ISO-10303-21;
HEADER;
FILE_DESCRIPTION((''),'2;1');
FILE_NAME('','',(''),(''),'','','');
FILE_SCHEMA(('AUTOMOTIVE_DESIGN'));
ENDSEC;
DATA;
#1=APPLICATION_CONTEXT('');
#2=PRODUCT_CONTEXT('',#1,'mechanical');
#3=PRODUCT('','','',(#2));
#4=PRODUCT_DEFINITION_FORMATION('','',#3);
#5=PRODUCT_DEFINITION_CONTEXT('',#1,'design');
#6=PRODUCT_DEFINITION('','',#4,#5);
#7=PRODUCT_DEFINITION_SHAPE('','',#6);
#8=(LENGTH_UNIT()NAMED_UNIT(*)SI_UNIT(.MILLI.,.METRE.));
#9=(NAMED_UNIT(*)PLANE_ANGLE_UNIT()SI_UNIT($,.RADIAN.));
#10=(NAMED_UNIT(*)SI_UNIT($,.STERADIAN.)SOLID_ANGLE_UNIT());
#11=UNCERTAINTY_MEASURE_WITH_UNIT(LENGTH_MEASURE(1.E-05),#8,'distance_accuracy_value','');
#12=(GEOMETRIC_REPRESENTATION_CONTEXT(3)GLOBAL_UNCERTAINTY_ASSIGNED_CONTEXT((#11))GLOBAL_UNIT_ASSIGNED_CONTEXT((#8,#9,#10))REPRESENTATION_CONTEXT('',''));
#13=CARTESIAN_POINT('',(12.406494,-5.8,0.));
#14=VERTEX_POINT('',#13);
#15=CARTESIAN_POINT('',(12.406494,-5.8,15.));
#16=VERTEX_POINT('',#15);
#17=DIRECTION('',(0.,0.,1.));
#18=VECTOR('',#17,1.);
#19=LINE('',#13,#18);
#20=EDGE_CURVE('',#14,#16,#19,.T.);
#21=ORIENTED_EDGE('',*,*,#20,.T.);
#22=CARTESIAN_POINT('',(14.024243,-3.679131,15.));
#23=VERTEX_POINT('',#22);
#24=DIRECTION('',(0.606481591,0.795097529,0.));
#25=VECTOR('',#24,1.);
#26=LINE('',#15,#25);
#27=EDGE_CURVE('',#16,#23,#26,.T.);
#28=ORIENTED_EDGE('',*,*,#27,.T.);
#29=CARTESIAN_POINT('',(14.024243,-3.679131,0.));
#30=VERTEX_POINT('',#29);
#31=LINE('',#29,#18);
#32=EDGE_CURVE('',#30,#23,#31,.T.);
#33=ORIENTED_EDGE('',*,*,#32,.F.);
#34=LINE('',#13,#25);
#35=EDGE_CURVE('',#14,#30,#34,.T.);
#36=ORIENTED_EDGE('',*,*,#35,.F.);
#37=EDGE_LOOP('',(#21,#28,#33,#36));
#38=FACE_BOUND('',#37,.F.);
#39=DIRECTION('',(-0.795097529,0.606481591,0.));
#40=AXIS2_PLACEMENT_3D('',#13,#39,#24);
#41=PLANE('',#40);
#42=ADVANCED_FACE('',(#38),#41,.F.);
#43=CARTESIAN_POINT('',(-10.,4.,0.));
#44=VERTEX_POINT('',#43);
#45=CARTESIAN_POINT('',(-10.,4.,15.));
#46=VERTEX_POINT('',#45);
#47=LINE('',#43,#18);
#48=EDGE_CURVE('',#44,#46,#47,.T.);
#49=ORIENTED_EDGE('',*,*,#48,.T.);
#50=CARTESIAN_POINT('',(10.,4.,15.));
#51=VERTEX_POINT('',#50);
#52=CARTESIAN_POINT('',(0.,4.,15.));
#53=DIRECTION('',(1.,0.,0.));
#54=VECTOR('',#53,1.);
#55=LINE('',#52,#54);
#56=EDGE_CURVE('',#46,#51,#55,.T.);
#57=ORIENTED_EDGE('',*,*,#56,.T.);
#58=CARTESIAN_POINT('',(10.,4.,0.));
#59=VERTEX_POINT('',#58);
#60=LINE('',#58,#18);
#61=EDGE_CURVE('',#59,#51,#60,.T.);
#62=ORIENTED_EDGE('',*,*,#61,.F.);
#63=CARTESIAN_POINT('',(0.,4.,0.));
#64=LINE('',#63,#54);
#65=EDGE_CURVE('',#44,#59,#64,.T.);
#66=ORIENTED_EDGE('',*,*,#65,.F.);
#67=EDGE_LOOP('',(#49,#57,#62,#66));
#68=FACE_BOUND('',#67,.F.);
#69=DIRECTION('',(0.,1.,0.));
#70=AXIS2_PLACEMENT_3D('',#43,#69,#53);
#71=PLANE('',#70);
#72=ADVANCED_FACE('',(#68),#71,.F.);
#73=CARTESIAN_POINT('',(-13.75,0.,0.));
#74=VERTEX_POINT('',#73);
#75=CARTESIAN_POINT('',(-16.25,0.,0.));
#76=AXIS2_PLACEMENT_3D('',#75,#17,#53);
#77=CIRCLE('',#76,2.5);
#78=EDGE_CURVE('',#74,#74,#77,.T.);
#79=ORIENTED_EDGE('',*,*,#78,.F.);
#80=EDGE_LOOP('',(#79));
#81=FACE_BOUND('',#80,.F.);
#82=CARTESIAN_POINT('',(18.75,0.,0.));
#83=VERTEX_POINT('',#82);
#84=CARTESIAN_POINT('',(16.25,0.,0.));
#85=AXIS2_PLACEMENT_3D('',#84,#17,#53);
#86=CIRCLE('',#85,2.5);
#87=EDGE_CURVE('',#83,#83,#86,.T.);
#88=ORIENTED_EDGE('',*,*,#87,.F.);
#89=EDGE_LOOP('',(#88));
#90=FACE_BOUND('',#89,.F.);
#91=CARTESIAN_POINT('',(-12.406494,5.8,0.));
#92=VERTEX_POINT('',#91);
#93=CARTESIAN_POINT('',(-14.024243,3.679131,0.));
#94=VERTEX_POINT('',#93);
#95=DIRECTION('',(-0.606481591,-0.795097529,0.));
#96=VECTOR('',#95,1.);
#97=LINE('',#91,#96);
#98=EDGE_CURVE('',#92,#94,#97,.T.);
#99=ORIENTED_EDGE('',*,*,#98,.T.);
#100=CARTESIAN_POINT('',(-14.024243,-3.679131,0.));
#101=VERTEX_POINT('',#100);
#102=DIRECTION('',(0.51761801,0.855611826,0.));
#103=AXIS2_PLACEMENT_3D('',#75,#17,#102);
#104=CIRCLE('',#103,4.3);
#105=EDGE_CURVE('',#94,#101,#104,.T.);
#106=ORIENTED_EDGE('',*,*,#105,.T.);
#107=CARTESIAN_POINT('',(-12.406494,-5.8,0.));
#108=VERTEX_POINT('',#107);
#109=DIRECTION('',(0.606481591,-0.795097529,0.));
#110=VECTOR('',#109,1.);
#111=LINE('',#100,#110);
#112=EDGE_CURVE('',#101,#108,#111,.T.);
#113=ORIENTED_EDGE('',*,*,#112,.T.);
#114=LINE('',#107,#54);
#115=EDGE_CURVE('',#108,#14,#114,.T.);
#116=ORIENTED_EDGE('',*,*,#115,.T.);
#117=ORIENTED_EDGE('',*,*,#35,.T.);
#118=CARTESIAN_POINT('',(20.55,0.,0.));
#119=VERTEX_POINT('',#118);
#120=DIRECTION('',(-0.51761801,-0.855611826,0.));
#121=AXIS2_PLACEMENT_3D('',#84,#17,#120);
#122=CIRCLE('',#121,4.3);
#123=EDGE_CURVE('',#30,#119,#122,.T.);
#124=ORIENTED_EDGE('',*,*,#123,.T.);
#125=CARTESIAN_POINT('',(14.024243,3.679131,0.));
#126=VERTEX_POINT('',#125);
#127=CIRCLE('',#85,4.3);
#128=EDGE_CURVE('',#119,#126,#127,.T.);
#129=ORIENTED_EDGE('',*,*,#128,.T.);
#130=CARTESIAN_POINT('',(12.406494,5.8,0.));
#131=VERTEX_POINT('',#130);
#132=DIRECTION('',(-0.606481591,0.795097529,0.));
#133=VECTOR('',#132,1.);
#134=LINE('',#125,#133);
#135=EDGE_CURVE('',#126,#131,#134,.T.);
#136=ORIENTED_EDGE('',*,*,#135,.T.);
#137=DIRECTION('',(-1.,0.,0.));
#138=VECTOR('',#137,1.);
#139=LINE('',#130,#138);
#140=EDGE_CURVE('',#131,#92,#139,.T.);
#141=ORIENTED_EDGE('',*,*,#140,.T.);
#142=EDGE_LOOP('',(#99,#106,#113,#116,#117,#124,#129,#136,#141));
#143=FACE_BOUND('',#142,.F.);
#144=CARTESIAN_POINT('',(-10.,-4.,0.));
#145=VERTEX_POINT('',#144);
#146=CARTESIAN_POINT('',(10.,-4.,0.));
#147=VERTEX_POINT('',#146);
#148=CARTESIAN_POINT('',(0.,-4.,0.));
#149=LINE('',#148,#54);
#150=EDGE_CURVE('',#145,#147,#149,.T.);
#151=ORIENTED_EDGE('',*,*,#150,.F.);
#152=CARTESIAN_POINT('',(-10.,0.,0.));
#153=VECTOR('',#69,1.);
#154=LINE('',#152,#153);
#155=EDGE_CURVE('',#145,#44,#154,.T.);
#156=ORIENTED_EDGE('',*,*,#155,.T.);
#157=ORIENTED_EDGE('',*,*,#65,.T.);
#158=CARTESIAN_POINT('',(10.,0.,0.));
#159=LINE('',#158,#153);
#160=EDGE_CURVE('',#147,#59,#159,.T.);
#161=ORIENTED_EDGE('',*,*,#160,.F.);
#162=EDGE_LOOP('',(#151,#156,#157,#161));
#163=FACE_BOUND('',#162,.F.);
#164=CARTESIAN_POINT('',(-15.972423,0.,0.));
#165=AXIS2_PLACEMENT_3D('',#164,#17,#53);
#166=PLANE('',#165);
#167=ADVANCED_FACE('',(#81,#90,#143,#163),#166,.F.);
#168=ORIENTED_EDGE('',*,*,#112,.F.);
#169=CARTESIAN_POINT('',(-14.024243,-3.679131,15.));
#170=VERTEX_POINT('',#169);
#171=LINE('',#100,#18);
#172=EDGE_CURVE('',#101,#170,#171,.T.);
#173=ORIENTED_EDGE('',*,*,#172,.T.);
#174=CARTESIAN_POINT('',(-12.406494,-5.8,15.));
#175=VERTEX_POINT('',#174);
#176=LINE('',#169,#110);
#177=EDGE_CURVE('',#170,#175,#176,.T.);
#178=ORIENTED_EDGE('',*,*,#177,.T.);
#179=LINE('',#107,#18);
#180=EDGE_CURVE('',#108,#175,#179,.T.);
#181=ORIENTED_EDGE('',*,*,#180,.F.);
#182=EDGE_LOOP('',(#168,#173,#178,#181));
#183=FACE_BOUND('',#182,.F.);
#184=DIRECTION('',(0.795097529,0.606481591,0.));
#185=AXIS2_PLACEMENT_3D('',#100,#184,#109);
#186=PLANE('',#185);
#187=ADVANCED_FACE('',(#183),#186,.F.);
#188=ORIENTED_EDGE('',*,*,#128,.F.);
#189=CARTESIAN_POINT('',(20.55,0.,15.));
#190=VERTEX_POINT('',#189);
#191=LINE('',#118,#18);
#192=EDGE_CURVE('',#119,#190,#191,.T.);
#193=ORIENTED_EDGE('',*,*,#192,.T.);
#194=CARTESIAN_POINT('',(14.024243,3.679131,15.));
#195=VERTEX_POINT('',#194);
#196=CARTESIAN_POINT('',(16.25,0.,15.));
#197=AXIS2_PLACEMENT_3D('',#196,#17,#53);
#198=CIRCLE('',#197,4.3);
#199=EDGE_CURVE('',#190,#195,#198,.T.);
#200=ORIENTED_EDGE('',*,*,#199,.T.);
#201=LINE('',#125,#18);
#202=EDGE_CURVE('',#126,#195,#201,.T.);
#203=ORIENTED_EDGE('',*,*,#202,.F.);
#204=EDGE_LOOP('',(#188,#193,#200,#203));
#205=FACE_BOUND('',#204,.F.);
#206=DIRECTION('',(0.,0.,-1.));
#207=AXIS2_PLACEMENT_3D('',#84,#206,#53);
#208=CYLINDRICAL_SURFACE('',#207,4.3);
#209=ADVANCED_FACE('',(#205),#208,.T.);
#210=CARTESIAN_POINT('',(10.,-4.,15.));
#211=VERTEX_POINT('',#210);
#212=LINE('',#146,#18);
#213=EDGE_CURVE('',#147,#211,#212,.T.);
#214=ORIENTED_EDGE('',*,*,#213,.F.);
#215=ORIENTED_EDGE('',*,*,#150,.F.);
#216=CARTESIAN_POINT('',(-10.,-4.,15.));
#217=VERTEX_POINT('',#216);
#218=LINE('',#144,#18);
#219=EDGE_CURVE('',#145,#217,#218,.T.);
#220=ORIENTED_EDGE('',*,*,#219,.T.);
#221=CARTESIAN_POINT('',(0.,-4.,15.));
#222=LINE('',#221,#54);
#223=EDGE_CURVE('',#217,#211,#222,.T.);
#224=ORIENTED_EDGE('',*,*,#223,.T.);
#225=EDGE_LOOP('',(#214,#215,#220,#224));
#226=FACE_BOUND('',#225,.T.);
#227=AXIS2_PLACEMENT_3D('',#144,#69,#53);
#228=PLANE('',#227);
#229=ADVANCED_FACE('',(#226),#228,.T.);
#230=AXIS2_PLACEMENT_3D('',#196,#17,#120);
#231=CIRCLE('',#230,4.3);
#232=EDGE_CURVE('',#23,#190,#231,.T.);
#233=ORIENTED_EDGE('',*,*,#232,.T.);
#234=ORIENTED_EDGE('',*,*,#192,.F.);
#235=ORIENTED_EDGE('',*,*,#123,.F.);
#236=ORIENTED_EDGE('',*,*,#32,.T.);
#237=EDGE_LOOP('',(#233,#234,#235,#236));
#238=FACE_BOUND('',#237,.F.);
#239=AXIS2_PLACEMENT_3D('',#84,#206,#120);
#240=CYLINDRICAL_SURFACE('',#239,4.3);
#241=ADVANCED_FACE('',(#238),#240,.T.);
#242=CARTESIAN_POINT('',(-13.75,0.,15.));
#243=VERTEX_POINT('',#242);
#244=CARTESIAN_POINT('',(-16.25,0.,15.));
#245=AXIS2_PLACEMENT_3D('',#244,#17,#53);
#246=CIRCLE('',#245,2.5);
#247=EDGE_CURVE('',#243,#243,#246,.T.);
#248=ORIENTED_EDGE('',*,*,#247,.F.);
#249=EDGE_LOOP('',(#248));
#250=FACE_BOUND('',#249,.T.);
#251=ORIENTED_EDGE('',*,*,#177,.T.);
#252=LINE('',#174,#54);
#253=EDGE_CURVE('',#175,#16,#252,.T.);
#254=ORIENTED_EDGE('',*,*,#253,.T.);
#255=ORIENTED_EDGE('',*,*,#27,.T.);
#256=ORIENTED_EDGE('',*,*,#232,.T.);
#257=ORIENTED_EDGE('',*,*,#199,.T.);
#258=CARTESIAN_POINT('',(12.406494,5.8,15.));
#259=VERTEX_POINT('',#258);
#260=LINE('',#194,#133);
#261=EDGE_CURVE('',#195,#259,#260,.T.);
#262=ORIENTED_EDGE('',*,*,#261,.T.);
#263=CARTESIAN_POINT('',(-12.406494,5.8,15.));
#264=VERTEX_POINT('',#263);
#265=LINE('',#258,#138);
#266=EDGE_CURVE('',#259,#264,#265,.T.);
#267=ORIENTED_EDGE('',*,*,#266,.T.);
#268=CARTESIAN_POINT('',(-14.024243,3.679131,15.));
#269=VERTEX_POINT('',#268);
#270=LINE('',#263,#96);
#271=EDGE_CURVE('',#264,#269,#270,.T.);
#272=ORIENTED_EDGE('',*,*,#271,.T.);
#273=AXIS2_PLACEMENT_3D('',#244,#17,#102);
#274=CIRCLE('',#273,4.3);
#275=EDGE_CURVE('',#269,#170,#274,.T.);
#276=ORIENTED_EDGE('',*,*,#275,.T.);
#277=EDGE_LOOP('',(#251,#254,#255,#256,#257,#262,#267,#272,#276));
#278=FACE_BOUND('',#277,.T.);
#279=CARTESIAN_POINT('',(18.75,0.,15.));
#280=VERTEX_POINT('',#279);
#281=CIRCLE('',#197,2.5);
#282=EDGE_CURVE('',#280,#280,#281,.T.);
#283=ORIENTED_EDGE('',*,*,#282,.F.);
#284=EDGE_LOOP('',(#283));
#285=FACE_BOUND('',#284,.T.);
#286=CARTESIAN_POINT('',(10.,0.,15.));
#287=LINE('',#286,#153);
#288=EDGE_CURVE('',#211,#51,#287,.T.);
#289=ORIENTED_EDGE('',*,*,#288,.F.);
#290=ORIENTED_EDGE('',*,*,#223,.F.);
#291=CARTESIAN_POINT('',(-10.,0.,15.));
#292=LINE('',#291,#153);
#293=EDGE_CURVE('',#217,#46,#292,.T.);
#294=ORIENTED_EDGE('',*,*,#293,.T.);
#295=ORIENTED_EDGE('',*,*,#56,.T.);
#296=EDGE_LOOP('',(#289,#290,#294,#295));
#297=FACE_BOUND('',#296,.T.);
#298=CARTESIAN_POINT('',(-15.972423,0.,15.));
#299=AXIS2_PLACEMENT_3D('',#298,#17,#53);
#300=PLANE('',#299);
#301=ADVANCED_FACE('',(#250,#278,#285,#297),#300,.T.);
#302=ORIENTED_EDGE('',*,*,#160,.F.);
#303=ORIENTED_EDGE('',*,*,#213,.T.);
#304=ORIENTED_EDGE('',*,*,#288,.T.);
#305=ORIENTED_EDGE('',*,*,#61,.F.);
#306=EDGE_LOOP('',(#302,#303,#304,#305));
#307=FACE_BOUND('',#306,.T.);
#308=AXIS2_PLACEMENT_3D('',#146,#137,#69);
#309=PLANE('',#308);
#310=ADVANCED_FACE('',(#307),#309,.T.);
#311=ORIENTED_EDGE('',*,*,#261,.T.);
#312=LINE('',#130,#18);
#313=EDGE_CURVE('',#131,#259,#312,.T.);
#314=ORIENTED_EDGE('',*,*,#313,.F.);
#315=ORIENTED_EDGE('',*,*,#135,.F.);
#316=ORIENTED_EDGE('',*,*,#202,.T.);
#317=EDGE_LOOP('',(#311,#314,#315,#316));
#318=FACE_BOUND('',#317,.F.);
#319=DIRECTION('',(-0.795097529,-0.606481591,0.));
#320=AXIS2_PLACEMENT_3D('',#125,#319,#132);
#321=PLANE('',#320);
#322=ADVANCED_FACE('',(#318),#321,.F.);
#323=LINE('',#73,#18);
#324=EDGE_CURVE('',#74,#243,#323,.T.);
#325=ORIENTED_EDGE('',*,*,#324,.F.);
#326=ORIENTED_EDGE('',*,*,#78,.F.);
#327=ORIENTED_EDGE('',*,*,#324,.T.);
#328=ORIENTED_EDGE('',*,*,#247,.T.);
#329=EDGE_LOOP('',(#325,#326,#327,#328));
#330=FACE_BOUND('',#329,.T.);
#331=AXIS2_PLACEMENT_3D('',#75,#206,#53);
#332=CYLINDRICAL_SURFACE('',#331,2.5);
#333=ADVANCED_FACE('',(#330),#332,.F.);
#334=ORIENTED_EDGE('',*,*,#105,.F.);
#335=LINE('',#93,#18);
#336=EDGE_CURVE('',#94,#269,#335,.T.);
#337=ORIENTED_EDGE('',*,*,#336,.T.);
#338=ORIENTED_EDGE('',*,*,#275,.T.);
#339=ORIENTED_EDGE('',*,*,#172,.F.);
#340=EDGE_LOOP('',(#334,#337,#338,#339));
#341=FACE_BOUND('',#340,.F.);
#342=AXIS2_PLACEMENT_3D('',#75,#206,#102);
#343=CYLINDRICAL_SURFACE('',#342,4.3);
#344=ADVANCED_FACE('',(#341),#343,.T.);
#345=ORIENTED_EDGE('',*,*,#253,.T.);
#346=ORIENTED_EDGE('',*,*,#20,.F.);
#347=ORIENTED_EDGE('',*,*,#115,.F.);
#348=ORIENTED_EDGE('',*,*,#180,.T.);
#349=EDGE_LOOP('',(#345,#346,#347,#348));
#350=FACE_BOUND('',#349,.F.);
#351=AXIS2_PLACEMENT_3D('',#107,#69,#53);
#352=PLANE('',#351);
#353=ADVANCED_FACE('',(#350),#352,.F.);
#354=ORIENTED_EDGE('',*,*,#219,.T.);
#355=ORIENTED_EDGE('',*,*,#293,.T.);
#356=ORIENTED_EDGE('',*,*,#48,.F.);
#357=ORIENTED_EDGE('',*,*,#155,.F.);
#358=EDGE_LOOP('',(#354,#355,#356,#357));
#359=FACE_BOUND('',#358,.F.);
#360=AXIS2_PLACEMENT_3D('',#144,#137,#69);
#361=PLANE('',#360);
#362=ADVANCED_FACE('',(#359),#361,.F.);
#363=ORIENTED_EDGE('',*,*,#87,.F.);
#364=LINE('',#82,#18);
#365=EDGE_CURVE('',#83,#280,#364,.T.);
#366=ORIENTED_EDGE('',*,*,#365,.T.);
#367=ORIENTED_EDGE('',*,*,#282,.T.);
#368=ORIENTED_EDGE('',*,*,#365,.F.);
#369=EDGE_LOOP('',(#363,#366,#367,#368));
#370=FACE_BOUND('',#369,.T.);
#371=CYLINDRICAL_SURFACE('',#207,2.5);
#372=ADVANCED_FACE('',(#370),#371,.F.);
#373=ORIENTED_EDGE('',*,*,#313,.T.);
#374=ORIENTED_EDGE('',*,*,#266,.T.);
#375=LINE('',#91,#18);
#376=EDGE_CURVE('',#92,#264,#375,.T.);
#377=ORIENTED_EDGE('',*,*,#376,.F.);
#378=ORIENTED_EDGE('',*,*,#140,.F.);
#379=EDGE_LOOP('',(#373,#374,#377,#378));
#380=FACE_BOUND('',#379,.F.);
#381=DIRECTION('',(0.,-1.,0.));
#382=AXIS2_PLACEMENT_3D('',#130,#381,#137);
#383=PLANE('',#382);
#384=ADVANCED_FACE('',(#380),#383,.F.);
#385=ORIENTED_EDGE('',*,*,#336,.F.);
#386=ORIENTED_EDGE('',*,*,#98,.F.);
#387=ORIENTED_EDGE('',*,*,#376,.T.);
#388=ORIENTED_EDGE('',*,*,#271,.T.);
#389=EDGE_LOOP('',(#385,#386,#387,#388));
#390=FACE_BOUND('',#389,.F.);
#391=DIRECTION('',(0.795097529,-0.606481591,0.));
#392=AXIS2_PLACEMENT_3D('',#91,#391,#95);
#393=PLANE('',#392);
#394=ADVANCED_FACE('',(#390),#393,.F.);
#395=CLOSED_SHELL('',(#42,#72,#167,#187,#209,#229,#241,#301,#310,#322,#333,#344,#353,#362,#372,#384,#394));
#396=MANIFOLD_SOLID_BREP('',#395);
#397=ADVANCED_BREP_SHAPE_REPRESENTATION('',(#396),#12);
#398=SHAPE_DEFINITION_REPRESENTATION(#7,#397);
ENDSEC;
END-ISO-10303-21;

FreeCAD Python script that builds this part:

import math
import FreeCAD as App
import Part
import Sketcher
from FreeCAD import Vector


def add_polygon(sketch, points):
    """Adds a closed chain of lines whose ends are joined by coincident constraints."""
    first, n = sketch.GeometryCount, len(points)
    for a, b in zip(points, points[1:] + points[:1]):
        sketch.addGeometry(Part.LineSegment(App.Vector(*a, 0), App.Vector(*b, 0)), False)
    for i in range(n):
        sketch.addConstraint(Sketcher.Constraint("Coincident", first + i, 2, first + (i + 1) % n, 1))

doc = App.newDocument("Part")
body = doc.addObject("PartDesign::Body", "Body")

sketch1 = body.newObject("Sketcher::SketchObject", "Sketch")
sketch1.AttachmentSupport = (doc.getObject("XY_Plane"), [""])
sketch1.MapMode = "FlatFace"
sketch1.addGeometry(Part.ArcOfCircle(Part.Circle(Vector(-16.2, 0, 0), Vector(0, 0, 1), 4.3), math.radians(59), math.radians(301)), False)
sketch1.addGeometry(Part.LineSegment(Vector(-14, -3.7, 0), Vector(-12.4, -5.8, 0)), False)
sketch1.addGeometry(Part.LineSegment(Vector(-12.4, -5.8, 0), Vector(12.4, -5.8, 0)), False)
sketch1.addGeometry(Part.LineSegment(Vector(12.4, -5.8, 0), Vector(14, -3.7, 0)), False)
sketch1.addGeometry(Part.ArcOfCircle(Part.Circle(Vector(16.2, 0, 0), Vector(0, 0, 1), 4.3), math.radians(-121), math.radians(0)), False)
sketch1.addGeometry(Part.ArcOfCircle(Part.Circle(Vector(16.2, 0, 0), Vector(0, 0, 1), 4.3), math.radians(0), math.radians(121)), False)
sketch1.addGeometry(Part.LineSegment(Vector(14, 3.7, 0), Vector(12.4, 5.8, 0)), False)
sketch1.addGeometry(Part.LineSegment(Vector(12.4, 5.8, 0), Vector(-12.4, 5.8, 0)), False)
sketch1.addGeometry(Part.LineSegment(Vector(-12.4, 5.8, 0), Vector(-14, 3.7, 0)), False)
sketch1.addGeometry(Part.Circle(Vector(-16.2, 0, 0), Vector(0, 0, 1), 2.5), False)
add_polygon(sketch1, [(10, -4), (-10, -4), (-10, 4), (10, 4)])
sketch1.addGeometry(Part.Circle(Vector(16.2, 0, 0), Vector(0, 0, 1), 2.5), False)
sketch1.addConstraint(Sketcher.Constraint("Coincident", 0, 2, 1, 1))
sketch1.addConstraint(Sketcher.Constraint("Coincident", 1, 2, 2, 1))
sketch1.addConstraint(Sketcher.Constraint("Coincident", 2, 2, 3, 1))
sketch1.addConstraint(Sketcher.Constraint("Coincident", 3, 2, 4, 1))
sketch1.addConstraint(Sketcher.Constraint("Tangent", 4, 2, 5, 1))
sketch1.addConstraint(Sketcher.Constraint("Coincident", 5, 2, 6, 1))
sketch1.addConstraint(Sketcher.Constraint("Coincident", 6, 2, 7, 1))
sketch1.addConstraint(Sketcher.Constraint("Coincident", 7, 2, 8, 1))
sketch1.addConstraint(Sketcher.Constraint("Coincident", 8, 2, 0, 1))
sketch1.addConstraint(Sketcher.Constraint("Horizontal", 2))
sketch1.addConstraint(Sketcher.Constraint("Horizontal", 7))
sketch1.addConstraint(Sketcher.Constraint("Horizontal", 10))
sketch1.addConstraint(Sketcher.Constraint("Vertical", 11))
sketch1.addConstraint(Sketcher.Constraint("Horizontal", 12))
sketch1.addConstraint(Sketcher.Constraint("Vertical", 13))
sketch1.addConstraint(Sketcher.Constraint("Coincident", 9, 3, 0, 3))
sketch1.addConstraint(Sketcher.Constraint("Coincident", 14, 3, 4, 3))
sketch1.addConstraint(Sketcher.Constraint("Equal", 0, 4))
sketch1.addConstraint(Sketcher.Constraint("Equal", 4, 5))
sketch1.addConstraint(Sketcher.Constraint("Equal", 9, 14))
sketch1.addConstraint(Sketcher.Constraint("Symmetric", 0, 3, 4, 3, -1, 1))
sketch1.addConstraint(Sketcher.Constraint("Symmetric", 1, 2, 6, 2, -1, 1))
sketch1.addConstraint(Sketcher.Constraint("Symmetric", 10, 2, 12, 2, -1, 1))
sketch1.addConstraint(Sketcher.Constraint("Symmetric", 0, 2, 3, 2, -2))
sketch1.addConstraint(Sketcher.Constraint("PointOnObject", 4, 2, -1))
sketch1.addConstraint(Sketcher.Constraint("Parallel", 1, 6))
sketch1.addConstraint(Sketcher.Constraint("Parallel", 3, 8))
sketch1.addConstraint(Sketcher.Constraint("Horizontal", 5, 2, 8, 2))
sketch1.addConstraint(Sketcher.Constraint("Vertical", 2, 2, 6, 2))
sketch1.addConstraint(Sketcher.Constraint("Diameter", 9, 5.0))
sketch1.addConstraint(Sketcher.Constraint("Radius", 0, 4.3))
sketch1.addConstraint(Sketcher.Constraint("DistanceX", 10, 2, 10, 1, 20.0))
sketch1.addConstraint(Sketcher.Constraint("DistanceY", 11, 1, 11, 2, 8.0))
sketch1.addConstraint(Sketcher.Constraint("DistanceY", 1, 2, -1, 1, 5.8))
sketch1.addConstraint(Sketcher.Constraint("DistanceX", 0, 3, 4, 3, 32.5))
sketch1.addConstraint(Sketcher.Constraint("DistanceX", 2, 1, 2, 2, 24.812987))
sketch1.addConstraint(Sketcher.Constraint("DistanceY", 0, 2, -1, 1, 3.679131))
pad1 = body.newObject("PartDesign::Pad", "Pad")
pad1.Profile = sketch1
pad1.Length = 15

doc.recompute()
